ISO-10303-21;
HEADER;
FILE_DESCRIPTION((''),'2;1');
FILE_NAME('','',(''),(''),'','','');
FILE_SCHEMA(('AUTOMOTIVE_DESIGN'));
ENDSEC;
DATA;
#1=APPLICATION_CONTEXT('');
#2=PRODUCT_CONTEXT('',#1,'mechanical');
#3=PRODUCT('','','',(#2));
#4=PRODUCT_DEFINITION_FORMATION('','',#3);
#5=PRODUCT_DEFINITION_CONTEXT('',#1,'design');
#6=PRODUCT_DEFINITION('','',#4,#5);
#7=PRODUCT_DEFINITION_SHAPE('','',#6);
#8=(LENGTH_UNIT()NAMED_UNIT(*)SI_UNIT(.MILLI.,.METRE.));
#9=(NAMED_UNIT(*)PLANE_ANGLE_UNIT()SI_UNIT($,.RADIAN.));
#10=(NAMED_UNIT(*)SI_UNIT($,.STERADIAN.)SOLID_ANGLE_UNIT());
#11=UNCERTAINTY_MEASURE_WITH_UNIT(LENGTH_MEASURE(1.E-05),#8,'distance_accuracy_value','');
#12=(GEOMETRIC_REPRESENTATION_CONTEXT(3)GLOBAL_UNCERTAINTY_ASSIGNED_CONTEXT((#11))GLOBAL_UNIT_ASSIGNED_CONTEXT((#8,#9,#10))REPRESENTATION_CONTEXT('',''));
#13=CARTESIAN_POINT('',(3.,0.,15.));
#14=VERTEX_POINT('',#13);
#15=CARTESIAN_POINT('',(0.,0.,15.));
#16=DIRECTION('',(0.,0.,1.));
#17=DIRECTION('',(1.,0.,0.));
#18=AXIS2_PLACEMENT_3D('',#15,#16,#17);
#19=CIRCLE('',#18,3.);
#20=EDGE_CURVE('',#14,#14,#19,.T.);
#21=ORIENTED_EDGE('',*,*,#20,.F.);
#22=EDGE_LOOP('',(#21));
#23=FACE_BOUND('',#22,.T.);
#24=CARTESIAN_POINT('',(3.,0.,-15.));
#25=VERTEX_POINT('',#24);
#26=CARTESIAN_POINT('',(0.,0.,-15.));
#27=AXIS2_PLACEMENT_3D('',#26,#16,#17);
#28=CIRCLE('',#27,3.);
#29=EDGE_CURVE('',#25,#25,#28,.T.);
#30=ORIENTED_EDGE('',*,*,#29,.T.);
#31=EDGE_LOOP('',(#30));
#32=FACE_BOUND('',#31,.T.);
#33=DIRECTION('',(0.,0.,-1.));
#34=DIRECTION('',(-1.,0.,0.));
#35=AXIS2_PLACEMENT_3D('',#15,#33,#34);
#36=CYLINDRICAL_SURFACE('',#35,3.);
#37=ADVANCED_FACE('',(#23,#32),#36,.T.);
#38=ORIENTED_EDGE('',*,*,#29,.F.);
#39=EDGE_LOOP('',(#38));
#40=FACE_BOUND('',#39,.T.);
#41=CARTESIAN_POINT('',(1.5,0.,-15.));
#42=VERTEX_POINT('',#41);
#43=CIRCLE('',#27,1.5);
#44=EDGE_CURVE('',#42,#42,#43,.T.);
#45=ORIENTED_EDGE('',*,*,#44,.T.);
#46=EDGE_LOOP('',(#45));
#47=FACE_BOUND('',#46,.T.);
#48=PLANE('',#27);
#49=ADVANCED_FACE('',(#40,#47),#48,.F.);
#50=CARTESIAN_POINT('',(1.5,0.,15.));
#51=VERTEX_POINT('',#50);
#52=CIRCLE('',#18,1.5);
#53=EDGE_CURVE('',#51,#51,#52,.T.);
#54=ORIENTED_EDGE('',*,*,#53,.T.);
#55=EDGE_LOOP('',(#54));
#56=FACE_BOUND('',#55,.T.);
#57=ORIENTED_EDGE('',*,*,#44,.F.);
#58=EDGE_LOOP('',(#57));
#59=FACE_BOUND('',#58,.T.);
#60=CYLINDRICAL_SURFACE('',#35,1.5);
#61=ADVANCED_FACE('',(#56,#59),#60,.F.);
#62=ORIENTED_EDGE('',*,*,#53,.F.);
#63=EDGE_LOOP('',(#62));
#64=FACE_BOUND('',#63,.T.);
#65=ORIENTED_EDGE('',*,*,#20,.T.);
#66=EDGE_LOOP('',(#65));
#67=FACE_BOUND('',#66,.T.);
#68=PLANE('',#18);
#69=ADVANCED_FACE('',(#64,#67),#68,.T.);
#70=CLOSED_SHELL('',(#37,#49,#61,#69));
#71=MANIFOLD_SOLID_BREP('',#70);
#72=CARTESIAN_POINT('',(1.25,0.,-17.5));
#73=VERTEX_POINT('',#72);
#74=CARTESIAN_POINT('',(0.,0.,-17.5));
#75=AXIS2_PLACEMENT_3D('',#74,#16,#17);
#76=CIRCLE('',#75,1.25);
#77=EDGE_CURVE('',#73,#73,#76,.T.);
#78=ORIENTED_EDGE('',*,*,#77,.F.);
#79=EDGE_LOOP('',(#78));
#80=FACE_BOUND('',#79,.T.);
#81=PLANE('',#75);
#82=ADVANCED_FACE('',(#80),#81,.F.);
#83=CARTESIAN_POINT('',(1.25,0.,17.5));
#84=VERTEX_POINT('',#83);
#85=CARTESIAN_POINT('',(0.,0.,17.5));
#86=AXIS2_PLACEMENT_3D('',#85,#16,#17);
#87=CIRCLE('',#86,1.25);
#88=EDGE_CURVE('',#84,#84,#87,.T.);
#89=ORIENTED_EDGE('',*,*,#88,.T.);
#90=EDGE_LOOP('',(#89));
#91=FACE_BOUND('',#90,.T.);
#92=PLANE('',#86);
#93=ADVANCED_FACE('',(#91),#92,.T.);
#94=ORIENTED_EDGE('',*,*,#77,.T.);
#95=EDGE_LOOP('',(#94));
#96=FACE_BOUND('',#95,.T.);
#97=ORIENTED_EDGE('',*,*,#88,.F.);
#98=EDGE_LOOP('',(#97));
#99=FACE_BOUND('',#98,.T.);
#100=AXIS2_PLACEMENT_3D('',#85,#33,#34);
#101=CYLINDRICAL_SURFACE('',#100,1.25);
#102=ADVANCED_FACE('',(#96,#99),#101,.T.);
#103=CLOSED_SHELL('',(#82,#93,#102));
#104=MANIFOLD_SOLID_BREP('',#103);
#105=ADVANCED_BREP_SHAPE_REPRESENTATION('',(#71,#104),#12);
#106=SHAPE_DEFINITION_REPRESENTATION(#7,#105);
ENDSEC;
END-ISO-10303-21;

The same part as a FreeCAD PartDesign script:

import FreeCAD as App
import Part
import Sketcher

doc = App.newDocument("Part")
body = doc.addObject("PartDesign::Body", "Body")

# Sketch on XY plane
sketch1 = doc.addObject("Sketcher::SketchObject", "Sketch")
body.addObject(sketch1)
sketch1.AttachmentSupport = (doc.XY_Plane, [""])
sketch1.MapMode = "FlatFace"
sketch1.addGeometry(Part.Circle(App.Vector(0, 0, 0), App.Vector(0, 0, 1), 1.2), False)
sketch1.addConstraint([
    Sketcher.Constraint("Coincident", 0, 3, -1, 1),
    Sketcher.Constraint("Diameter", 0, 2.5),
])
pad1 = doc.addObject("PartDesign::Pad", "Pad")
body.addObject(pad1)
pad1.Profile = sketch1
pad1.Length = 35
pad1.Midplane = True
body2 = doc.addObject("PartDesign::Body", "Body001")

# Sketch on XY plane
sketch2 = doc.addObject("Sketcher::SketchObject", "Sketch001")
body2.addObject(sketch2)
sketch2.AttachmentSupport = (doc.getObject("XY_Plane001"), [""])
sketch2.MapMode = "FlatFace"
sketch2.addGeometry([
    Part.Circle(App.Vector(0, 0, 0), App.Vector(0, 0, 1), 3),
    Part.Circle(App.Vector(0, 0, 0), App.Vector(0, 0, 1), 1.5),
], False)
sketch2.addConstraint([
    Sketcher.Constraint("Coincident", 0, 3, -1, 1),
    Sketcher.Constraint("Coincident", 1, 3, -1, 1),
    Sketcher.Constraint("Diameter", 0, 6.0),
    Sketcher.Constraint("Diameter", 1, 3.0),
])
pad2 = doc.addObject("PartDesign::Pad", "Pad001")
body2.addObject(pad2)
pad2.Profile = sketch2
pad2.Length = 30
pad2.Midplane = True

doc.recompute()
